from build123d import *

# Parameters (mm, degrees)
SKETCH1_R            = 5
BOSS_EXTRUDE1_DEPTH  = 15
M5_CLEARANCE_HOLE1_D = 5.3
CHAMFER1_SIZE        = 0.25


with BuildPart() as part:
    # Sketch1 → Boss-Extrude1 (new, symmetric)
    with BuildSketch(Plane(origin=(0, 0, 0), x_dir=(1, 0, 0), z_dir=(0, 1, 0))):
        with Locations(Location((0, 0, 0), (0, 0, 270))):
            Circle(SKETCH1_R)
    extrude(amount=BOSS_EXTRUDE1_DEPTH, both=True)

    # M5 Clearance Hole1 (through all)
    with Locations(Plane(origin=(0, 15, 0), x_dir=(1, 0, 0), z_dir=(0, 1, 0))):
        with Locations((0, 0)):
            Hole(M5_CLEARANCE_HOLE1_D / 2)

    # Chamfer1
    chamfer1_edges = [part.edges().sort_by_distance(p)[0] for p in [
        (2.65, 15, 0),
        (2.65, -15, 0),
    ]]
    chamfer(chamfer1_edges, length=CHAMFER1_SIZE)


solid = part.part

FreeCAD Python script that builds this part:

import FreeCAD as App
import Part
import Sketcher
from FreeCAD import Vector
Q = App.Units.Quantity


def edges_at(feature, points):
    """Names of the edges that pass closest to the given points."""
    edges = feature.Shape.Edges
    near = lambda p: min(range(len(edges)), key=lambda i: edges[i].distToShape(Part.Vertex(*p))[0])
    return sorted({f"Edge{near(p) + 1}" for p in points})

doc = App.newDocument("Part")
body = doc.addObject("PartDesign::Body", "Body")

sketch1 = body.newObject("Sketcher::SketchObject", "Sketch")
sketch1.AttachmentSupport = (doc.getObject("XZ_Plane"), [""])
sketch1.MapMode = "FlatFace"
sketch1.addGeometry(Part.Circle(Vector(0, 0, 0), Vector(0, 0, 1), 5), False)
sketch1.addConstraint(Sketcher.Constraint("Coincident", 0, 3, -1, 1))
sketch1.addConstraint(Sketcher.Constraint("Diameter", 0, Q("10 mm")))
pad1 = body.newObject("PartDesign::Pad", "Pad")
pad1.Profile = sketch1
pad1.Length = 30
pad1.Midplane = True

sketch2 = body.newObject("Sketcher::SketchObject", "Sketch001")
sketch2.AttachmentSupport = (doc.getObject("XZ_Plane"), [""])
sketch2.MapMode = "FlatFace"
sketch2.AttachmentOffset = App.Placement(Vector(0, 0, -15), App.Rotation())
sketch2.addGeometry(Part.Circle(Vector(0, 0, 0), Vector(0, 0, 1), 2.6), False)
sketch2.addConstraint(Sketcher.Constraint("Coincident", 0, 3, -1, 1))
sketch2.addConstraint(Sketcher.Constraint("Diameter", 0, Q("5.3 mm")))
doc.recompute()
hole = body.newObject("PartDesign::Hole", "Hole")
hole.Profile = sketch2
hole.ThreadType = "None"
hole.Diameter = 5.3
hole.DepthType = "ThroughAll"
hole.Reversed = True
doc.recompute()

chamfer = body.newObject("PartDesign::Chamfer", "Chamfer")
chamfer.Base = (hole, edges_at(hole, [(2.65, 15, 0), (2.65, -15, 0)]))
chamfer.Size = 0.25

doc.recompute()
